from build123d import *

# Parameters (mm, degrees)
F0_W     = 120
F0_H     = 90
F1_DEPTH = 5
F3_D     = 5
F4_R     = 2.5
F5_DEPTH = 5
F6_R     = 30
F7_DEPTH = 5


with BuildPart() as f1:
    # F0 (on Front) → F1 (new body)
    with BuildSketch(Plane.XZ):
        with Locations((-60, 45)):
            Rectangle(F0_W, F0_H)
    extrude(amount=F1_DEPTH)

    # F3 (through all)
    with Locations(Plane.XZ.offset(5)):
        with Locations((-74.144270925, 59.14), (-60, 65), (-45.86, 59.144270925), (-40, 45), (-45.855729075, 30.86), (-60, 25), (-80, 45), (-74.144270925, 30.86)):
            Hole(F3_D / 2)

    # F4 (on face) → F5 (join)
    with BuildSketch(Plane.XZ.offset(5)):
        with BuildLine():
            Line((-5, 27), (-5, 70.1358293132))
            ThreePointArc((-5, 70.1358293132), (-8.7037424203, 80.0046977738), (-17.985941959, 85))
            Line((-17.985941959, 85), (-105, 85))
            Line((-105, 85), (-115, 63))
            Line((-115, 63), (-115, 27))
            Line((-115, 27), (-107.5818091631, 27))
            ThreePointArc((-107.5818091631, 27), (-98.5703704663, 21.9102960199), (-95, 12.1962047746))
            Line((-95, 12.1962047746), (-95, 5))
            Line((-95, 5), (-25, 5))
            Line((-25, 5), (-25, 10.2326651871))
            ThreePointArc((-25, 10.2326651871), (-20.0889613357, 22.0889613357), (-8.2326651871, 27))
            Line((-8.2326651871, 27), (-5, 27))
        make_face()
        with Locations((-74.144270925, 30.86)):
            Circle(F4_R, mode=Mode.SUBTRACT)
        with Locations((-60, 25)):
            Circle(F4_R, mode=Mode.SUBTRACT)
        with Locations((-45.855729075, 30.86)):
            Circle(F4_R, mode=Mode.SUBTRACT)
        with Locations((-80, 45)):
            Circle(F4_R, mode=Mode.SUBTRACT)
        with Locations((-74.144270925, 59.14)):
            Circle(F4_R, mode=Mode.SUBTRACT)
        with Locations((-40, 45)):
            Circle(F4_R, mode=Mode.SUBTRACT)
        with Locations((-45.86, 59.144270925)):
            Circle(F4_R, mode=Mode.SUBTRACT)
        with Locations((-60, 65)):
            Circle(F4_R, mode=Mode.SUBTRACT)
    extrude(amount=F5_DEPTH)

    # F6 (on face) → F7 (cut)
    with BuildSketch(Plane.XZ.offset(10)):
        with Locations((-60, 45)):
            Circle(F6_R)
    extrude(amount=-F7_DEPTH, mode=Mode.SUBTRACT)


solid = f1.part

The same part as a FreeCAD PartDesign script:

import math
import FreeCAD as App
import Part
import Sketcher
from FreeCAD import Vector
Q = App.Units.Quantity

doc = App.newDocument("Part")
body = doc.addObject("PartDesign::Body", "Body")

# Sketch on XZ plane
sketch1 = body.newObject("Sketcher::SketchObject", "Sketch")
sketch1.AttachmentSupport = (doc.getObject("XZ_Plane"), [""])
sketch1.MapMode = "FlatFace"
sketch1.addGeometry(Part.LineSegment(Vector(-120, 90, 0), Vector(-120, 0, 0)), False)
sketch1.addGeometry(Part.LineSegment(Vector(-120, 0, 0), Vector(0, 0, 0)), False)
sketch1.addGeometry(Part.LineSegment(Vector(0, 0, 0), Vector(0, 90, 0)), False)
sketch1.addGeometry(Part.LineSegment(Vector(0, 90, 0), Vector(-120, 90, 0)), False)
sketch1.addConstraint(Sketcher.Constraint("Coincident", 0, 2, 1, 1))
sketch1.addConstraint(Sketcher.Constraint("Coincident", 1, 2, 2, 1))
sketch1.addConstraint(Sketcher.Constraint("Coincident", 2, 2, 3, 1))
sketch1.addConstraint(Sketcher.Constraint("Coincident", 3, 2, 0, 1))
sketch1.addConstraint(Sketcher.Constraint("Vertical", 0))
sketch1.addConstraint(Sketcher.Constraint("Horizontal", 1))
sketch1.addConstraint(Sketcher.Constraint("Vertical", 2))
sketch1.addConstraint(Sketcher.Constraint("Horizontal", 3))
sketch1.addConstraint(Sketcher.Constraint("Coincident", 1, 2, -1, 1))
sketch1.addConstraint(Sketcher.Constraint("DistanceX", 1, 1, 1, 2, Q("120 mm")))
sketch1.addConstraint(Sketcher.Constraint("DistanceY", 0, 2, 0, 1, Q("90 mm")))
pad1 = body.newObject("PartDesign::Pad", "Pad")
pad1.Profile = sketch1
pad1.Length = 5

# Sketch on XZ plane
sketch2 = body.newObject("Sketcher::SketchObject", "Sketch001")
sketch2.AttachmentSupport = (doc.getObject("XZ_Plane"), [""])
sketch2.MapMode = "FlatFace"
sketch2.AttachmentOffset = App.Placement(Vector(0, 0, 5), App.Rotation())
sketch2.addGeometry(Part.Circle(Vector(-74.1, 59.1, 0), Vector(0, 0, 1), 2.5), False)
sketch2.addGeometry(Part.Circle(Vector(-60, 65, 0), Vector(0, 0, 1), 2.5), False)
sketch2.addGeometry(Part.Circle(Vector(-45.9, 59.1, 0), Vector(0, 0, 1), 2.5), False)
sketch2.addGeometry(Part.Circle(Vector(-40, 45, 0), Vector(0, 0, 1), 2.5), False)
sketch2.addGeometry(Part.Circle(Vector(-45.9, 30.9, 0), Vector(0, 0, 1), 2.5), False)
sketch2.addGeometry(Part.Circle(Vector(-60, 25, 0), Vector(0, 0, 1), 2.5), False)
sketch2.addGeometry(Part.Circle(Vector(-80, 45, 0), Vector(0, 0, 1), 2.5), False)
sketch2.addGeometry(Part.Circle(Vector(-74.1, 30.9, 0), Vector(0, 0, 1), 2.5), False)
sketch2.addConstraint(Sketcher.Constraint("Equal", 0, 1))
sketch2.addConstraint(Sketcher.Constraint("Equal", 1, 2))
sketch2.addConstraint(Sketcher.Constraint("Equal", 2, 3))
sketch2.addConstraint(Sketcher.Constraint("Equal", 3, 4))
sketch2.addConstraint(Sketcher.Constraint("Equal", 4, 5))
sketch2.addConstraint(Sketcher.Constraint("Equal", 5, 6))
sketch2.addConstraint(Sketcher.Constraint("Equal", 6, 7))
sketch2.addConstraint(Sketcher.Constraint("Horizontal", 3, 3, 6, 3))
sketch2.addConstraint(Sketcher.Constraint("Horizontal", 4, 3, 7, 3))
sketch2.addConstraint(Sketcher.Constraint("Vertical", 1, 3, 5, 3))
sketch2.addConstraint(Sketcher.Constraint("Vertical", 0, 3, 7, 3))
sketch2.addConstraint(Sketcher.Constraint("Diameter", 0, Q("5 mm")))
sketch2.addConstraint(Sketcher.Constraint("DistanceX", 1, 3, -1, 1, Q("60 mm")))
sketch2.addConstraint(Sketcher.Constraint("DistanceY", -1, 1, 1, 3, Q("65 mm")))
sketch2.addConstraint(Sketcher.Constraint("DistanceX", 3, 3, -1, 1, Q("40 mm")))
sketch2.addConstraint(Sketcher.Constraint("DistanceY", -1, 1, 3, 3, Q("45 mm")))
sketch2.addConstraint(Sketcher.Constraint("DistanceY", -1, 1, 5, 3, Q("25 mm")))
sketch2.addConstraint(Sketcher.Constraint("DistanceX", 6, 3, -1, 1, Q("80 mm")))
sketch2.addConstraint(Sketcher.Constraint("DistanceY", -1, 1, 0, 3, Q("59.14 mm")))
sketch2.addConstraint(Sketcher.Constraint("DistanceX", 2, 3, -1, 1, Q("45.86 mm")))
sketch2.addConstraint(Sketcher.Constraint("DistanceY", -1, 1, 4, 3, Q("30.86 mm")))
sketch2.addConstraint(Sketcher.Constraint("DistanceX", 0, 3, -1, 1, Q("74.144271 mm")))
sketch2.addConstraint(Sketcher.Constraint("DistanceY", -1, 1, 2, 3, Q("59.144271 mm")))
sketch2.addConstraint(Sketcher.Constraint("DistanceX", 4, 3, -1, 1, Q("45.855729 mm")))
doc.recompute()
hole = body.newObject("PartDesign::Hole", "Hole")
hole.Profile = sketch2
hole.ThreadType = "None"
hole.Diameter = 5
hole.DepthType = "ThroughAll"

# Sketch on XZ plane
sketch3 = body.newObject("Sketcher::SketchObject", "Sketch002")
sketch3.AttachmentSupport = (doc.getObject("XZ_Plane"), [""])
sketch3.MapMode = "FlatFace"
sketch3.AttachmentOffset = App.Placement(Vector(0, 0, 5), App.Rotation())
sketch3.addGeometry(Part.LineSegment(Vector(-5, 27, 0), Vector(-5, 70.1, 0)), False)
sketch3.addGeometry(Part.ArcOfCircle(Part.Circle(Vector(-20, 70.1, 0), Vector(0, 0, 1), 15), math.radians(0), math.radians(82)), False)
sketch3.addGeometry(Part.LineSegment(Vector(-18, 85, 0), Vector(-105, 85, 0)), False)
sketch3.addGeometry(Part.LineSegment(Vector(-105, 85, 0), Vector(-115, 63, 0)), False)
sketch3.addGeometry(Part.LineSegment(Vector(-115, 63, 0), Vector(-115, 27, 0)), False)
sketch3.addGeometry(Part.LineSegment(Vector(-115, 27, 0), Vector(-107.6, 27, 0)), False)
sketch3.addGeometry(Part.ArcOfCircle(Part.Circle(Vector(-110, 12.2, 0), Vector(0, 0, 1), 15), math.radians(0), math.radians(81)), False)
sketch3.addGeometry(Part.LineSegment(Vector(-95, 12.2, 0), Vector(-95, 5, 0)), False)
sketch3.addGeometry(Part.LineSegment(Vector(-95, 5, 0), Vector(-25, 5, 0)), False)
sketch3.addGeometry(Part.LineSegment(Vector(-25, 5, 0), Vector(-25, 10.2, 0)), False)
sketch3.addGeometry(Part.ArcOfCircle(Part.Circle(Vector(-8.2, 10.2, 0), Vector(0, 0, 1), 16.8), math.radians(90), math.radians(180)), False)
sketch3.addGeometry(Part.LineSegment(Vector(-8.2, 27, 0), Vector(-5, 27, 0)), False)
sketch3.addGeometry(Part.Circle(Vector(-74.1, 30.9, 0), Vector(0, 0, 1), 2.5), False)
sketch3.addGeometry(Part.Circle(Vector(-60, 25, 0), Vector(0, 0, 1), 2.5), False)
sketch3.addGeometry(Part.Circle(Vector(-45.9, 30.9, 0), Vector(0, 0, 1), 2.5), False)
sketch3.addGeometry(Part.Circle(Vector(-80, 45, 0), Vector(0, 0, 1), 2.5), False)
sketch3.addGeometry(Part.Circle(Vector(-74.1, 59.1, 0), Vector(0, 0, 1), 2.5), False)
sketch3.addGeometry(Part.Circle(Vector(-40, 45, 0), Vector(0, 0, 1), 2.5), False)
sketch3.addGeometry(Part.Circle(Vector(-60, 65, 0), Vector(0, 0, 1), 2.5), False)
sketch3.addGeometry(Part.Circle(Vector(-45.9, 59.1, 0), Vector(0, 0, 1), 2.5), False)
sketch3.addConstraint(Sketcher.Constraint("Tangent", 0, 2, 1, 1))
sketch3.addConstraint(Sketcher.Constraint("Coincident", 1, 2, 2, 1))
sketch3.addConstraint(Sketcher.Constraint("Coincident", 2, 2, 3, 1))
sketch3.addConstraint(Sketcher.Constraint("Coincident", 3, 2, 4, 1))
sketch3.addConstraint(Sketcher.Constraint("Coincident", 4, 2, 5, 1))
sketch3.addConstraint(Sketcher.Constraint("Coincident", 5, 2, 6, 2))
sketch3.addConstraint(Sketcher.Constraint("Tangent", 6, 1, 7, 1))
sketch3.addConstraint(Sketcher.Constraint("Coincident", 7, 2, 8, 1))
sketch3.addConstraint(Sketcher.Constraint("Coincident", 8, 2, 9, 1))
sketch3.addConstraint(Sketcher.Constraint("Tangent", 9, 2, 10, 2))
sketch3.addConstraint(Sketcher.Constraint("Tangent", 10, 1, 11, 1))
sketch3.addConstraint(Sketcher.Constraint("Coincident", 11, 2, 0, 1))
sketch3.addConstraint(Sketcher.Constraint("Vertical", 0))
sketch3.addConstraint(Sketcher.Constraint("Horizontal", 2))
sketch3.addConstraint(Sketcher.Constraint("Vertical", 4))
sketch3.addConstraint(Sketcher.Constraint("Horizontal", 5))
sketch3.addConstraint(Sketcher.Constraint("Vertical", 7))
sketch3.addConstraint(Sketcher.Constraint("Horizontal", 8))
sketch3.addConstraint(Sketcher.Constraint("Vertical", 9))
sketch3.addConstraint(Sketcher.Constraint("Horizontal", 11))
sketch3.addConstraint(Sketcher.Constraint("Equal", 1, 6))
sketch3.addConstraint(Sketcher.Constraint("Equal", 12, 13))
sketch3.addConstraint(Sketcher.Constraint("Equal", 13, 14))
sketch3.addConstraint(Sketcher.Constraint("Equal", 14, 15))
sketch3.addConstraint(Sketcher.Constraint("Equal", 15, 16))
sketch3.addConstraint(Sketcher.Constraint("Equal", 16, 17))
sketch3.addConstraint(Sketcher.Constraint("Equal", 17, 18))
sketch3.addConstraint(Sketcher.Constraint("Equal", 18, 19))
sketch3.addConstraint(Sketcher.Constraint("Horizontal", 12, 3, 14, 3))
sketch3.addConstraint(Sketcher.Constraint("Horizontal", 15, 3, 17, 3))
sketch3.addConstraint(Sketcher.Constraint("Horizontal", 5, 2, 10, 1))
sketch3.addConstraint(Sketcher.Constraint("Vertical", 12, 3, 16, 3))
sketch3.addConstraint(Sketcher.Constraint("Vertical", 13, 3, 18, 3))
sketch3.addConstraint(Sketcher.Constraint("Diameter", 12, Q("5 mm")))
sketch3.addConstraint(Sketcher.Constraint("Radius", 1, Q("15 mm")))
sketch3.addConstraint(Sketcher.Constraint("DistanceX", 8, 1, 8, 2, Q("70 mm")))
sketch3.addConstraint(Sketcher.Constraint("DistanceY", 4, 2, 4, 1, Q("36 mm")))
sketch3.addConstraint(Sketcher.Constraint("DistanceX", 1, 3, -1, 1, Q("20 mm")))
sketch3.addConstraint(Sketcher.Constraint("DistanceX", 6, 3, -1, 1, Q("110 mm")))
sketch3.addConstraint(Sketcher.Constraint("DistanceX", 13, 3, -1, 1, Q("60 mm")))
sketch3.addConstraint(Sketcher.Constraint("DistanceY", -1, 1, 13, 3, Q("25 mm")))
sketch3.addConstraint(Sketcher.Constraint("DistanceX", 15, 3, -1, 1, Q("80 mm")))
sketch3.addConstraint(Sketcher.Constraint("DistanceY", -1, 1, 15, 3, Q("45 mm")))
sketch3.addConstraint(Sketcher.Constraint("DistanceX", 17, 3, -1, 1, Q("40 mm")))
sketch3.addConstraint(Sketcher.Constraint("DistanceY", -1, 1, 18, 3, Q("65 mm")))
sketch3.addConstraint(Sketcher.Constraint("DistanceY", -1, 1, 1, 2, Q("85 mm")))
sketch3.addConstraint(Sketcher.Constraint("DistanceX", 2, 2, -1, 1, Q("105 mm")))
sketch3.addConstraint(Sketcher.Constraint("DistanceX", 3, 2, -1, 1, Q("115 mm")))
sketch3.addConstraint(Sketcher.Constraint("DistanceY", -1, 1, 3, 2, Q("63 mm")))
sketch3.addConstraint(Sketcher.Constraint("DistanceY", -1, 1, 7, 2, Q("5 mm")))
sketch3.addConstraint(Sketcher.Constraint("DistanceY", -1, 1, 12, 3, Q("30.86 mm")))
sketch3.addConstraint(Sketcher.Constraint("DistanceY", -1, 1, 16, 3, Q("59.14 mm")))
sketch3.addConstraint(Sketcher.Constraint("DistanceX", 19, 3, -1, 1, Q("45.86 mm")))
sketch3.addConstraint(Sketcher.Constraint("Radius", 10, Q("16.767335 mm")))
sketch3.addConstraint(Sketcher.Constraint("DistanceX", 2, 2, 2, 1, Q("87.014058 mm")))
sketch3.addConstraint(Sketcher.Constraint("DistanceX", 5, 1, 5, 2, Q("7.418191 mm")))
sketch3.addConstraint(Sketcher.Constraint("DistanceX", 12, 3, -1, 1, Q("74.144271 mm")))
sketch3.addConstraint(Sketcher.Constraint("DistanceX", 14, 3, -1, 1, Q("45.855729 mm")))
sketch3.addConstraint(Sketcher.Constraint("DistanceY", -1, 1, 19, 3, Q("59.144271 mm")))
pad2 = body.newObject("PartDesign::Pad", "Pad001")
pad2.Profile = sketch3
pad2.Length = 5

# Sketch on XZ plane
sketch4 = body.newObject("Sketcher::SketchObject", "Sketch003")
sketch4.AttachmentSupport = (doc.getObject("XZ_Plane"), [""])
sketch4.MapMode = "FlatFace"
sketch4.AttachmentOffset = App.Placement(Vector(0, 0, 10), App.Rotation())
sketch4.addGeometry(Part.Circle(Vector(-60, 45, 0), Vector(0, 0, 1), 30), False)
sketch4.addConstraint(Sketcher.Constraint("Diameter", 0, Q("60 mm")))
sketch4.addConstraint(Sketcher.Constraint("DistanceX", 0, 3, -1, 1, Q("60 mm")))
sketch4.addConstraint(Sketcher.Constraint("DistanceY", -1, 1, 0, 3, Q("45 mm")))
pocket1 = body.newObject("PartDesign::Pocket", "Pocket")
pocket1.Profile = sketch4
pocket1.Length = 5

doc.recompute()
